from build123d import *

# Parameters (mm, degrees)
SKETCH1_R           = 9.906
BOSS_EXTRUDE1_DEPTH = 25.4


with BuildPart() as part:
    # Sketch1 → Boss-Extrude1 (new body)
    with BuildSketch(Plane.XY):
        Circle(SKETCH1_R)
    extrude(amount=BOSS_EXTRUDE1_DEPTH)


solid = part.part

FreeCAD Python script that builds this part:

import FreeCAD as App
import Part
import Sketcher

V = App.Vector
Q = App.Units.Quantity

doc = App.newDocument("Part")
params = doc.addObject("Spreadsheet::Sheet", "Params")
for row, (alias, value) in enumerate([
    ("sketch1_diameter", "0.78 in"),
    ("pad1_length", "1 in"),
], start=1):
    params.set(f"A{row}", alias)
    params.set(f"B{row}", "=" + value)
    params.setAlias(f"B{row}", alias)

body = doc.addObject("PartDesign::Body", "Body")

sketch1 = body.newObject("Sketcher::SketchObject", "Sketch")
sketch1.AttachmentSupport = (doc.getObject("XY_Plane"), [""])
sketch1.MapMode = "FlatFace"
sketch1.addGeometry(Part.Circle(V(0, 0, 0), V(0, 0, 1), 10), False)
sketch1.addConstraint([
    Sketcher.Constraint("Coincident", 0, 3, -1, 1),
    Sketcher.Constraint("Diameter", 0, Q("0.78 in")),
])
sketch1.setExpression("Constraints[1]", "Params.sketch1_diameter")
pad1 = body.newObject("PartDesign::Pad", "Pad")
pad1.Profile = sketch1
pad1.setExpression("Length", "Params.pad1_length")

doc.recompute()
